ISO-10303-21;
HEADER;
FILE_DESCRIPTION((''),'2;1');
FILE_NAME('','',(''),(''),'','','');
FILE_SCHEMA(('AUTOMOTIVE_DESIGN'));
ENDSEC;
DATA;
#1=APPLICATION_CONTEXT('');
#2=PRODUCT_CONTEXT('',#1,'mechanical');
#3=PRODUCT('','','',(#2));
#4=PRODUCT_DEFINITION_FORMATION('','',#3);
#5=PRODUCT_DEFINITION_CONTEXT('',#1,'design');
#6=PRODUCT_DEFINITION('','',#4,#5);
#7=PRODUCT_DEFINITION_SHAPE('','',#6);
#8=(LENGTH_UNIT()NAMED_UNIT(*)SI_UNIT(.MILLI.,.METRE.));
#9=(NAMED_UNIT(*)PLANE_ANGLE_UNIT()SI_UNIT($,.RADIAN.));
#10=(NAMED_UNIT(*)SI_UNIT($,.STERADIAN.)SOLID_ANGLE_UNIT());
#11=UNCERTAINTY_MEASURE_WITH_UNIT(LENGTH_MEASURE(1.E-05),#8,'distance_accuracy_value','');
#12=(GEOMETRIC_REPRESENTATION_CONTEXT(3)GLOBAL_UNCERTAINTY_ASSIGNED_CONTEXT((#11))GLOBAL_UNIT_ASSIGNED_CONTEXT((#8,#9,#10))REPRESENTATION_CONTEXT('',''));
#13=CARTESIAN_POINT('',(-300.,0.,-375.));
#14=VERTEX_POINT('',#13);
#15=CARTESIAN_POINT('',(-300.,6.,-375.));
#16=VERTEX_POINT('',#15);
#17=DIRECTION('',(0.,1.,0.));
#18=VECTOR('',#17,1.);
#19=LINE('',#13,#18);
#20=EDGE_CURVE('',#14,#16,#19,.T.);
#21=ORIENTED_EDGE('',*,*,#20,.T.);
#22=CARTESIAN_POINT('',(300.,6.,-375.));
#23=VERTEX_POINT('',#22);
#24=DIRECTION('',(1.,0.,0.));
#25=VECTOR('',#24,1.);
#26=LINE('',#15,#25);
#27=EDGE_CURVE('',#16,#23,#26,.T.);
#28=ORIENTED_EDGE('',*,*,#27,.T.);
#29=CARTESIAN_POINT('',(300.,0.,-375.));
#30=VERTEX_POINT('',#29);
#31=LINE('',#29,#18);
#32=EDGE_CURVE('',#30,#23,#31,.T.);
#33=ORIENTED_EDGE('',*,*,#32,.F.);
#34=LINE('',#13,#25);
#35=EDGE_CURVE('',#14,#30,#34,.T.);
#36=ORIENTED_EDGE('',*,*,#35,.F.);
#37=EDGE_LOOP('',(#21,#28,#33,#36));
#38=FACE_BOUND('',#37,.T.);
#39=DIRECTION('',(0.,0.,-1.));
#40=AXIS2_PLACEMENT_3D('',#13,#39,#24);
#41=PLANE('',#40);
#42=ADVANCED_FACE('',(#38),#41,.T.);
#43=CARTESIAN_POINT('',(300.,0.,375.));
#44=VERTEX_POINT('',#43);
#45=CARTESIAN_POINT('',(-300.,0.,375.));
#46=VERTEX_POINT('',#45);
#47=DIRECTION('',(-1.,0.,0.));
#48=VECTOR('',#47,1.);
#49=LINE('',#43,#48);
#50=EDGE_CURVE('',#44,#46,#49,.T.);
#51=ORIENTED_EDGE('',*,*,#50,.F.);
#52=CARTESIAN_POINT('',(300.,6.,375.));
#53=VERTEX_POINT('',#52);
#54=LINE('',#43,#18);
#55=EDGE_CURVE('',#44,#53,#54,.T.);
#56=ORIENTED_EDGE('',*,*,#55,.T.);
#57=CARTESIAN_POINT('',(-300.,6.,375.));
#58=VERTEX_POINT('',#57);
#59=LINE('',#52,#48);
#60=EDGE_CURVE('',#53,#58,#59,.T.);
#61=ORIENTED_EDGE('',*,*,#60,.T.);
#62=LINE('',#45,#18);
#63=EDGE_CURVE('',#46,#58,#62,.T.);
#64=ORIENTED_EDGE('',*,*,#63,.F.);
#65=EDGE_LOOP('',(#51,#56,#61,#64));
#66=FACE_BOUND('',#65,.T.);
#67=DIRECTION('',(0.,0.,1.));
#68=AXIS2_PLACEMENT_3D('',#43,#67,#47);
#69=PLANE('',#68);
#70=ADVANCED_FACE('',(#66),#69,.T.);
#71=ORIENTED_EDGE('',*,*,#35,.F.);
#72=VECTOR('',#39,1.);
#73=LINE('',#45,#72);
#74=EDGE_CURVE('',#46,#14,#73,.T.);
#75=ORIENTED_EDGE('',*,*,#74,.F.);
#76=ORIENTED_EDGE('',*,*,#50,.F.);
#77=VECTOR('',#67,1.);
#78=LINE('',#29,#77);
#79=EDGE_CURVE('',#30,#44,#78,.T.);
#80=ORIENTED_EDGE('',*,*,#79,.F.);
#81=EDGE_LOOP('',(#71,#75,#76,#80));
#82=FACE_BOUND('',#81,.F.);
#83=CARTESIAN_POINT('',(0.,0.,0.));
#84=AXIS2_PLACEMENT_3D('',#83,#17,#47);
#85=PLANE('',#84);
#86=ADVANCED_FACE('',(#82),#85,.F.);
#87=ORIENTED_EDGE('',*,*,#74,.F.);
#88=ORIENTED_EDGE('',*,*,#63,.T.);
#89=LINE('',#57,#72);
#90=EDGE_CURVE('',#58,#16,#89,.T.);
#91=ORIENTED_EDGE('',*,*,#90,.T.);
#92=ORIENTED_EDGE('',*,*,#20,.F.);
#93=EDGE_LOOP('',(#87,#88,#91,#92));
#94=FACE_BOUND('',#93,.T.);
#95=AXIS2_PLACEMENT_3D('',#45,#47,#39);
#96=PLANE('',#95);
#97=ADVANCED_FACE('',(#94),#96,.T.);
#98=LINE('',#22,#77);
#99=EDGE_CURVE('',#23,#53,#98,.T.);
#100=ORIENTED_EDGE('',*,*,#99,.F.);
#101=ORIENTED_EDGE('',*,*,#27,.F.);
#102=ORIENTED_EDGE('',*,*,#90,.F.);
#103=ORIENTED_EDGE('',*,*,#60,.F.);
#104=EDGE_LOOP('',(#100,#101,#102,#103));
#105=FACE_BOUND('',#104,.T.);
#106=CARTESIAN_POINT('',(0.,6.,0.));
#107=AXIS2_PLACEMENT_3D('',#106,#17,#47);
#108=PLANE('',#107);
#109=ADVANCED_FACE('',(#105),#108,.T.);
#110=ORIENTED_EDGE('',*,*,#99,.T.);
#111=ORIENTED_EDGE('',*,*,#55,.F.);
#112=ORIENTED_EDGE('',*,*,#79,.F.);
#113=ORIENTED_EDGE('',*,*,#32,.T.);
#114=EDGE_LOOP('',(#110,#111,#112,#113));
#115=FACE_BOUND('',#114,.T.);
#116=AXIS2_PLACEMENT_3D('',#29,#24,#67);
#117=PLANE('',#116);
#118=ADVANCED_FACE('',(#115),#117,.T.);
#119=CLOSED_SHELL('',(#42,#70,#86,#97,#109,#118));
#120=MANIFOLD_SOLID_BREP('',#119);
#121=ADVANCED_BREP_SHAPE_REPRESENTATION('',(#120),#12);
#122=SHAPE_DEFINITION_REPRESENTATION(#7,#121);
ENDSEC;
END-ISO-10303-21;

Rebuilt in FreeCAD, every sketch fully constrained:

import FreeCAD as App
import Part
import Sketcher
from FreeCAD import Vector
Q = App.Units.Quantity

doc = App.newDocument("Part")
params = doc.addObject("Spreadsheet::Sheet", "Params")
for row, (alias, value) in enumerate([
    ("sketch1_width", "600 mm"),
    ("sketch1_height", "750 mm"),
    ("pad1_length", "6 mm"),
], start=1):
    params.set(f"A{row}", alias)
    params.set(f"B{row}", "=" + value)
    params.setAlias(f"B{row}", alias)

body = doc.addObject("PartDesign::Body", "Body")

# Sketch on XZ plane
sketch1 = body.newObject("Sketcher::SketchObject", "Sketch")
sketch1.AttachmentSupport = (doc.getObject("XZ_Plane"), [""])
sketch1.MapMode = "FlatFace"
sketch1.addGeometry([
    Part.LineSegment(Vector(-300, 375, 0), Vector(300, 375, 0)),
    Part.LineSegment(Vector(300, 375, 0), Vector(300, -375, 0)),
    Part.LineSegment(Vector(300, -375, 0), Vector(-300, -375, 0)),
    Part.LineSegment(Vector(-300, -375, 0), Vector(-300, 375, 0)),
], False)
sketch1.addConstraint([
    Sketcher.Constraint("Coincident", 0, 2, 1, 1),
    Sketcher.Constraint("Coincident", 1, 2, 2, 1),
    Sketcher.Constraint("Coincident", 2, 2, 3, 1),
    Sketcher.Constraint("Coincident", 3, 2, 0, 1),
    Sketcher.Constraint("Horizontal", 0),
    Sketcher.Constraint("Vertical", 1),
    Sketcher.Constraint("Horizontal", 2),
    Sketcher.Constraint("Vertical", 3),
    Sketcher.Constraint("Symmetric", 0, 2, 2, 2, -1, 1),
    Sketcher.Constraint("DistanceX", 0, 1, 0, 2, Q("600 mm")),
    Sketcher.Constraint("DistanceY", 1, 2, 1, 1, Q("750 mm")),
])
sketch1.setExpression("Constraints[9]", "Params.sketch1_width")
sketch1.setExpression("Constraints[10]", "Params.sketch1_height")
pad1 = body.newObject("PartDesign::Pad", "Pad")
pad1.Profile = sketch1
pad1.setExpression("Length", "Params.pad1_length")
pad1.Reversed = True

doc.recompute()
